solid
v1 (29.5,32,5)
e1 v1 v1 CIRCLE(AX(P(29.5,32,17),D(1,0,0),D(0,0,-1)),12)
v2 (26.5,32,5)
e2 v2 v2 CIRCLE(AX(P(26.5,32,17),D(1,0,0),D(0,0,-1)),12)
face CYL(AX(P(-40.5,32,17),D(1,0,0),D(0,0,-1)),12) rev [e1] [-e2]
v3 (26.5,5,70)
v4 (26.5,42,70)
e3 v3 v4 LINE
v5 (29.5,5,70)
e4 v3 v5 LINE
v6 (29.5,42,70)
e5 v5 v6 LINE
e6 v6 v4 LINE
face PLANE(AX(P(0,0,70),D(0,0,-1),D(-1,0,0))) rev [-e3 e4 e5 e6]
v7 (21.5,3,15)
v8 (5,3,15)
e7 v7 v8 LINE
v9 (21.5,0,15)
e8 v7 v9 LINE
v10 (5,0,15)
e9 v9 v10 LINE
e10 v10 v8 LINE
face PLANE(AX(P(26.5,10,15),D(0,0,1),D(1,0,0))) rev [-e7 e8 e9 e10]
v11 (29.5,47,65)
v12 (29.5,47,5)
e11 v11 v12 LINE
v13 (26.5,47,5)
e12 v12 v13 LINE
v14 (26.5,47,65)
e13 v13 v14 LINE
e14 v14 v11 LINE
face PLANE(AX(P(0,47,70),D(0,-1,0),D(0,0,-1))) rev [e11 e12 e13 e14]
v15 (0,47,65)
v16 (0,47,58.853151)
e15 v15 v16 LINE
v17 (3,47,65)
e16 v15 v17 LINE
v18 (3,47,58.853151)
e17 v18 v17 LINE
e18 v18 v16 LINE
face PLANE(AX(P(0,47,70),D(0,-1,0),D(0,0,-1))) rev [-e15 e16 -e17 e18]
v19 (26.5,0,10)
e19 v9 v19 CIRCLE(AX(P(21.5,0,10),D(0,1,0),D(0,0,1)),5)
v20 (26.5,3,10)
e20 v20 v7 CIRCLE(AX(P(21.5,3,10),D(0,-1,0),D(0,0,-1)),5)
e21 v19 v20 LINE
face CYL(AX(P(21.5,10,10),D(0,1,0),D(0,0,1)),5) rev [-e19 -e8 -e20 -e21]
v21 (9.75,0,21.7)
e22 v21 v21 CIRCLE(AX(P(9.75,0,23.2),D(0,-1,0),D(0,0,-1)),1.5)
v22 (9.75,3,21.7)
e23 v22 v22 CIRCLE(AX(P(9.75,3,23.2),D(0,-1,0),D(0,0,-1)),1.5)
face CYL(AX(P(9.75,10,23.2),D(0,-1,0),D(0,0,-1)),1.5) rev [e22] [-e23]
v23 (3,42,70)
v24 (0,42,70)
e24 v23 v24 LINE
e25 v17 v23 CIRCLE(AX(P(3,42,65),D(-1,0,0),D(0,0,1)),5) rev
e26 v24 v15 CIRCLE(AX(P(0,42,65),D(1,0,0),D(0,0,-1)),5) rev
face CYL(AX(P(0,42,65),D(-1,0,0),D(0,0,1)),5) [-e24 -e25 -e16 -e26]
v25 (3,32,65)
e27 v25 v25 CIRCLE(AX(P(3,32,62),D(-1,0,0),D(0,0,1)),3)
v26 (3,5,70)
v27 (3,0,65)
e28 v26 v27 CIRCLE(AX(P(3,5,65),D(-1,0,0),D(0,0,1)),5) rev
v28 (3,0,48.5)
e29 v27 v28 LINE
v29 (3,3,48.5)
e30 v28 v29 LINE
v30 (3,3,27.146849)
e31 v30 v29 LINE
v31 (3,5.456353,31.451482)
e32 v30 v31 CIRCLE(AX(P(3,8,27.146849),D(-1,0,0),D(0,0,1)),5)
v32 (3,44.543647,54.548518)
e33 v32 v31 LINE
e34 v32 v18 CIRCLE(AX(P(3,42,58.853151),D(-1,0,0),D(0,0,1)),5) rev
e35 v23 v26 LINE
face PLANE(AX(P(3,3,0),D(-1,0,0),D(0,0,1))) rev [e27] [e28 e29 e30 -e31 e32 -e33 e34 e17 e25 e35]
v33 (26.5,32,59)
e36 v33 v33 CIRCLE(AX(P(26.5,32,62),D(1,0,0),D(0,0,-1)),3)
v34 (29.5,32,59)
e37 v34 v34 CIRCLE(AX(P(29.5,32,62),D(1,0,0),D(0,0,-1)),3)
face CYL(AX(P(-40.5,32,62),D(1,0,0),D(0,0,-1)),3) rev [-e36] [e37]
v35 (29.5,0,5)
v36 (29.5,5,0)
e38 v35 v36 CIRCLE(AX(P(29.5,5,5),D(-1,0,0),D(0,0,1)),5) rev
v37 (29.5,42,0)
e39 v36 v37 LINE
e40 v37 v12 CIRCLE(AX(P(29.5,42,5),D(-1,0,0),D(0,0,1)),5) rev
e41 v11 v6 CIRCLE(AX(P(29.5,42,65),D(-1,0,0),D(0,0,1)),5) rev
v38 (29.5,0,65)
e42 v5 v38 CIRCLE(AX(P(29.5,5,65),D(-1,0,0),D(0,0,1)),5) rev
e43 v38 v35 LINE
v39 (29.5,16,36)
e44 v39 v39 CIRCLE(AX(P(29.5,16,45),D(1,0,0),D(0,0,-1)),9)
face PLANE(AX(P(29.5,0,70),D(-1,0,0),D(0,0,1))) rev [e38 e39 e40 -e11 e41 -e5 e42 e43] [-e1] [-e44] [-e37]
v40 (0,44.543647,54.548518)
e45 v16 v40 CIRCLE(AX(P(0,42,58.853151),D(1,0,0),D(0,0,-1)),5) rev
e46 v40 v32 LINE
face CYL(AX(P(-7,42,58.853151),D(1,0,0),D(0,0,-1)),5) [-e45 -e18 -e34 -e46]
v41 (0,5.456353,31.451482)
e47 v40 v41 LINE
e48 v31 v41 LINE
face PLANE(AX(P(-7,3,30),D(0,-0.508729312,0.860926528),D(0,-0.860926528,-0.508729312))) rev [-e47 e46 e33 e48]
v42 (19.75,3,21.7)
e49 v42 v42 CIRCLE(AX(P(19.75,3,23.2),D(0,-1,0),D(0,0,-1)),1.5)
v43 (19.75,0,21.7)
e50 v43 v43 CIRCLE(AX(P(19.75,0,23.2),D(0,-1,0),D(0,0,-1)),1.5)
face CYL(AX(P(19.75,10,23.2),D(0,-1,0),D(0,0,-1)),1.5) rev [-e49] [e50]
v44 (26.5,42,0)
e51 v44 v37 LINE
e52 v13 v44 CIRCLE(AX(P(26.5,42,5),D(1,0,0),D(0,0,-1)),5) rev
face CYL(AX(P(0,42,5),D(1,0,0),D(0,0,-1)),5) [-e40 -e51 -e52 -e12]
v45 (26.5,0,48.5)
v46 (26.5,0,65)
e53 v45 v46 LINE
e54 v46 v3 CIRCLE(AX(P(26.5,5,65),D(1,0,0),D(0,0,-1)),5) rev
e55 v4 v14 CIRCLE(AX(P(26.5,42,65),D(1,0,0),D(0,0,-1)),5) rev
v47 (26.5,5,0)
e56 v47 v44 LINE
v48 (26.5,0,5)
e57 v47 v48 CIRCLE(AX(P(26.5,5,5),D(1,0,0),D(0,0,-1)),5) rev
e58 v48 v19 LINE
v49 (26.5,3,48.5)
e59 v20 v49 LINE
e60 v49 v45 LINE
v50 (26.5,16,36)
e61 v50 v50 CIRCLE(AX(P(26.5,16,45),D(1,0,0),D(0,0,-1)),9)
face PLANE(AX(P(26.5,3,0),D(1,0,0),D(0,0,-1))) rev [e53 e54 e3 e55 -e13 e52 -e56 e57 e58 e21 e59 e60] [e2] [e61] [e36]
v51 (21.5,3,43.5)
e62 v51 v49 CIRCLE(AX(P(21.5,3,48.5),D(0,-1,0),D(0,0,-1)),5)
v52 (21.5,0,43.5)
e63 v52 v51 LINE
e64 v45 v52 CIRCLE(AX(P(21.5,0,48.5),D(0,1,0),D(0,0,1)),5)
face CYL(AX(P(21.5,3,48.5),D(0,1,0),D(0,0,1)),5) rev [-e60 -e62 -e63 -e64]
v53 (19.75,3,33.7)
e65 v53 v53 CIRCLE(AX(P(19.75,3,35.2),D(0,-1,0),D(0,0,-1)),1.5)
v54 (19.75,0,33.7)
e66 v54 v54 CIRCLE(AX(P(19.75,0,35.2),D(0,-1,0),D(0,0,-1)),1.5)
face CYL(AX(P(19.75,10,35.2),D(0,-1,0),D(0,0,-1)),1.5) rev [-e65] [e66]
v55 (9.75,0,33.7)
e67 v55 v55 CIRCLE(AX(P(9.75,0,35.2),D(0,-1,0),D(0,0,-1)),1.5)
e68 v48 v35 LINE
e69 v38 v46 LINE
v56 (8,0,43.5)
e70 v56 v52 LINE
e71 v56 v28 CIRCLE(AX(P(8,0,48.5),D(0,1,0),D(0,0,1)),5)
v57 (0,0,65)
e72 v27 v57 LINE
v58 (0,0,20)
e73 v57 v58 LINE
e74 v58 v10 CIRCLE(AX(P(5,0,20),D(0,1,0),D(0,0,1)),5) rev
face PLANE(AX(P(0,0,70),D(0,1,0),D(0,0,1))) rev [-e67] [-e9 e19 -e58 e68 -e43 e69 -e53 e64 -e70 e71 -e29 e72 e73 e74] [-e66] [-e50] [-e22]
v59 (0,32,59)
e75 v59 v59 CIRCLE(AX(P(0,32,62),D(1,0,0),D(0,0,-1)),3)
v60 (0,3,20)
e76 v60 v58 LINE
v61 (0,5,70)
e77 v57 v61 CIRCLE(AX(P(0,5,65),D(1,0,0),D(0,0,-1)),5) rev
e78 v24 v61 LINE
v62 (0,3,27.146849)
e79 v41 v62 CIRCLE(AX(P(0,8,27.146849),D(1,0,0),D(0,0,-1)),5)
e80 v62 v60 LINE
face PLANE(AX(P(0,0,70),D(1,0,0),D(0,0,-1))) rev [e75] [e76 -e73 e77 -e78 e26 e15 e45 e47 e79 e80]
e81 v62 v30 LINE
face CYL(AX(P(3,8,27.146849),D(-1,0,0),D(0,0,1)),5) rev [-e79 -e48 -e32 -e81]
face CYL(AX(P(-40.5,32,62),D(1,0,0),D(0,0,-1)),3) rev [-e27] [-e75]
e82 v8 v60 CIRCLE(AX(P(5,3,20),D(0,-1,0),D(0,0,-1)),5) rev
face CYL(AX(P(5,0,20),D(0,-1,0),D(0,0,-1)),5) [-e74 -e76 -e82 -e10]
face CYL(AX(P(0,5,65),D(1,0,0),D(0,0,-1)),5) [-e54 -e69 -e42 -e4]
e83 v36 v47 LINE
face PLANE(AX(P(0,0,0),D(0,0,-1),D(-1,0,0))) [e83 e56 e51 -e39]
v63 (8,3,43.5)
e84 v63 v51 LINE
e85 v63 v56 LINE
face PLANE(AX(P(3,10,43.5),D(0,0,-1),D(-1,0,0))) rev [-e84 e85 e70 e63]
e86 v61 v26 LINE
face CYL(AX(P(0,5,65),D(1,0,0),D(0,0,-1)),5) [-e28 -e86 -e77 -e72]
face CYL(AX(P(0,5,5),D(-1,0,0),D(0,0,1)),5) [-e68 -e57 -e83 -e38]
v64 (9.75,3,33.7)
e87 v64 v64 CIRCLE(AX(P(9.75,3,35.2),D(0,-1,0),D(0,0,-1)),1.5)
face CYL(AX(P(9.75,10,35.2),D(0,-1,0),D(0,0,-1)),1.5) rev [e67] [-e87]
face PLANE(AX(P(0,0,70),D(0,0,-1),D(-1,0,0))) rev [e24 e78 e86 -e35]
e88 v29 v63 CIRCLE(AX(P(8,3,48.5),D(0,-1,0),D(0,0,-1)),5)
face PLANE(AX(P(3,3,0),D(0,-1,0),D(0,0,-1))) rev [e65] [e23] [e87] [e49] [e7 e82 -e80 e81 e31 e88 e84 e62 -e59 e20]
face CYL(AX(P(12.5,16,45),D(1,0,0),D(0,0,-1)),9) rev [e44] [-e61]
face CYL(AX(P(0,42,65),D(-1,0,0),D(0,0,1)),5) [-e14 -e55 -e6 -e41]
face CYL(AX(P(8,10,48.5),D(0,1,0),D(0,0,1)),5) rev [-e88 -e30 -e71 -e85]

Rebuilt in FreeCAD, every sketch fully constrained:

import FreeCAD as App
import Part
import Sketcher

V = App.Vector
Q = App.Units.Quantity


def edges_at(feature, points):
    """Names of the edges that pass closest to the given points."""
    edges = feature.Shape.Edges
    near = lambda p: min(range(len(edges)), key=lambda i: edges[i].distToShape(Part.Vertex(*p))[0])
    return sorted({f"Edge{near(p) + 1}" for p in points})

doc = App.newDocument("Part")
params = doc.addObject("Spreadsheet::Sheet", "Params")
for row, (alias, value) in enumerate([
    ("sketch1_height", "47 mm"),
    ("sketch1_width", "29.5 mm"),
    ("pad1_length", "70 mm"),
    ("sketch2_height", "44 mm"),
    ("sketch2_width", "23.5 mm"),
    ("pocket1_length", "70 mm"),
    ("sketch3_diameter", "24 mm"),
    ("sketch3_diameter2", "6 mm"),
    ("pocket2_length", "70 mm"),
    ("sketch4_diameter", "18 mm"),
    ("pocket3_length", "17 mm"),
    ("sketch5_height", "15 mm"),
    ("sketch5_width", "23.5 mm"),
    ("sketch5_height2", "26.5 mm"),
    ("pocket4_length", "10 mm"),
    ("fillet_radius", "5 mm"),
    ("sketch6_width", "3 mm"),
    ("sketch6_width2", "47 mm"),
    ("sketch6_height", "15 mm"),
    ("sketch6_height2", "56 mm"),
    ("pocket5_length", "10 mm"),
    ("fillet2_radius", "5 mm"),
    ("sketch7_diameter", "3 mm"),
    ("pocket6_length", "10 mm"),
], start=1):
    params.set(f"A{row}", alias)
    params.set(f"B{row}", "=" + value)
    params.setAlias(f"B{row}", alias)

body = doc.addObject("PartDesign::Body", "Body")

sketch1 = body.newObject("Sketcher::SketchObject", "Sketch")
sketch1.AttachmentSupport = (doc.getObject("XY_Plane"), [""])
sketch1.MapMode = "FlatFace"
sketch1.addGeometry(Part.LineSegment(V(0, 47, 0), V(0, 0, 0)), False)
sketch1.addGeometry(Part.LineSegment(V(0, 0, 0), V(30, 0, 0)), False)
sketch1.addGeometry(Part.LineSegment(V(30, 0, 0), V(30, 47, 0)), False)
sketch1.addGeometry(Part.LineSegment(V(30, 47, 0), V(0, 47, 0)), False)
sketch1.addConstraint(Sketcher.Constraint("Coincident", 0, 2, 1, 1))
sketch1.addConstraint(Sketcher.Constraint("Coincident", 1, 2, 2, 1))
sketch1.addConstraint(Sketcher.Constraint("Coincident", 2, 2, 3, 1))
sketch1.addConstraint(Sketcher.Constraint("Coincident", 3, 2, 0, 1))
sketch1.addConstraint(Sketcher.Constraint("Vertical", 0))
sketch1.addConstraint(Sketcher.Constraint("Horizontal", 1))
sketch1.addConstraint(Sketcher.Constraint("Vertical", 2))
sketch1.addConstraint(Sketcher.Constraint("Horizontal", 3))
sketch1.addConstraint(Sketcher.Constraint("Coincident", 0, 2, -1, 1))
sketch1.addConstraint(Sketcher.Constraint("DistanceY", 0, 2, 0, 1, Q("47 mm")))
sketch1.addConstraint(Sketcher.Constraint("DistanceX", 1, 1, 1, 2, Q("29.5 mm")))
sketch1.setExpression("Constraints[9]", "Params.sketch1_height")
sketch1.setExpression("Constraints[10]", "Params.sketch1_width")
pad1 = body.newObject("PartDesign::Pad", "Pad")
pad1.Profile = sketch1
pad1.setExpression("Length", "Params.pad1_length")

sketch2 = body.newObject("Sketcher::SketchObject", "Sketch001")
sketch2.AttachmentSupport = (doc.getObject("XY_Plane"), [""])
sketch2.MapMode = "FlatFace"
sketch2.AttachmentOffset = App.Placement(V(0, 0, 70), App.Rotation())
sketch2.addGeometry(Part.LineSegment(V(3, 47, 0), V(3, 3, 0)), False)
sketch2.addGeometry(Part.LineSegment(V(3, 3, 0), V(26, 3, 0)), False)
sketch2.addGeometry(Part.LineSegment(V(26, 3, 0), V(26, 47, 0)), False)
sketch2.addGeometry(Part.LineSegment(V(26, 47, 0), V(3, 47, 0)), False)
sketch2.addConstraint(Sketcher.Constraint("Coincident", 0, 2, 1, 1))
sketch2.addConstraint(Sketcher.Constraint("Coincident", 1, 2, 2, 1))
sketch2.addConstraint(Sketcher.Constraint("Coincident", 2, 2, 3, 1))
sketch2.addConstraint(Sketcher.Constraint("Coincident", 3, 2, 0, 1))
sketch2.addConstraint(Sketcher.Constraint("Vertical", 0))
sketch2.addConstraint(Sketcher.Constraint("Horizontal", 1))
sketch2.addConstraint(Sketcher.Constraint("Vertical", 2))
sketch2.addConstraint(Sketcher.Constraint("Horizontal", 3))
sketch2.addConstraint(Sketcher.Constraint("DistanceY", 0, 2, 0, 1, Q("44 mm")))
sketch2.addConstraint(Sketcher.Constraint("DistanceX", 1, 1, 1, 2, Q("23.5 mm")))
sketch2.addConstraint(Sketcher.Constraint("DistanceX", -1, 1, 0, 2, Q("3 mm")))
sketch2.addConstraint(Sketcher.Constraint("DistanceY", -1, 1, 0, 2, Q("3 mm")))
sketch2.setExpression("Constraints[8]", "Params.sketch2_height")
sketch2.setExpression("Constraints[9]", "Params.sketch2_width")
pocket1 = body.newObject("PartDesign::Pocket", "Pocket")
pocket1.Profile = sketch2
pocket1.setExpression("Length", "Params.pocket1_length")

sketch3 = body.newObject("Sketcher::SketchObject", "Sketch002")
sketch3.AttachmentSupport = (doc.getObject("YZ_Plane"), [""])
sketch3.MapMode = "FlatFace"
sketch3.AttachmentOffset = App.Placement(V(0, 0, 29.5), App.Rotation())
sketch3.addGeometry(Part.Circle(V(32, 17, 0), V(0, 0, 1), 12), False)
sketch3.addGeometry(Part.Circle(V(32, 62, 0), V(0, 0, 1), 3), False)
sketch3.addConstraint(Sketcher.Constraint("Vertical", 0, 3, 1, 3))
sketch3.addConstraint(Sketcher.Constraint("Diameter", 0, Q("24 mm")))
sketch3.addConstraint(Sketcher.Constraint("Diameter", 1, Q("6 mm")))
sketch3.addConstraint(Sketcher.Constraint("DistanceX", -1, 1, 0, 3, Q("32 mm")))
sketch3.addConstraint(Sketcher.Constraint("DistanceY", -1, 1, 0, 3, Q("17 mm")))
sketch3.addConstraint(Sketcher.Constraint("DistanceY", -1, 1, 1, 3, Q("62 mm")))
sketch3.setExpression("Constraints[1]", "Params.sketch3_diameter")
sketch3.setExpression("Constraints[2]", "Params.sketch3_diameter2")
pocket2 = body.newObject("PartDesign::Pocket", "Pocket001")
pocket2.Profile = sketch3
pocket2.setExpression("Length", "Params.pocket2_length")

sketch4 = body.newObject("Sketcher::SketchObject", "Sketch003")
sketch4.AttachmentSupport = (doc.getObject("YZ_Plane"), [""])
sketch4.MapMode = "FlatFace"
sketch4.AttachmentOffset = App.Placement(V(0, 0, 29.5), App.Rotation())
sketch4.addGeometry(Part.Circle(V(16, 45, 0), V(0, 0, 1), 9), False)
sketch4.addConstraint(Sketcher.Constraint("Diameter", 0, Q("18 mm")))
sketch4.addConstraint(Sketcher.Constraint("DistanceX", -1, 1, 0, 3, Q("16 mm")))
sketch4.addConstraint(Sketcher.Constraint("DistanceY", -1, 1, 0, 3, Q("45 mm")))
sketch4.setExpression("Constraints[0]", "Params.sketch4_diameter")
pocket3 = body.newObject("PartDesign::Pocket", "Pocket002")
pocket3.Profile = sketch4
pocket3.setExpression("Length", "Params.pocket3_length")

sketch5 = body.newObject("Sketcher::SketchObject", "Sketch004")
sketch5.AttachmentSupport = (doc.getObject("XZ_Plane"), [""])
sketch5.MapMode = "FlatFace"
sketch5.addGeometry(Part.LineSegment(V(3, 70, 0), V(3, 44, 0)), False)
sketch5.addGeometry(Part.LineSegment(V(3, 44, 0), V(26, 44, 0)), False)
sketch5.addGeometry(Part.LineSegment(V(26, 44, 0), V(26, 70, 0)), False)
sketch5.addGeometry(Part.LineSegment(V(26, 70, 0), V(3, 70, 0)), False)
sketch5.addGeometry(Part.LineSegment(V(3, 15, 0), V(3, 0, 0)), False)
sketch5.addGeometry(Part.LineSegment(V(3, 0, 0), V(26, 0, 0)), False)
sketch5.addGeometry(Part.LineSegment(V(26, 0, 0), V(26, 15, 0)), False)
sketch5.addGeometry(Part.LineSegment(V(26, 15, 0), V(3, 15, 0)), False)
sketch5.addConstraint(Sketcher.Constraint("Coincident", 0, 2, 1, 1))
sketch5.addConstraint(Sketcher.Constraint("Coincident", 1, 2, 2, 1))
sketch5.addConstraint(Sketcher.Constraint("Coincident", 2, 2, 3, 1))
sketch5.addConstraint(Sketcher.Constraint("Coincident", 3, 2, 0, 1))
sketch5.addConstraint(Sketcher.Constraint("Coincident", 4, 2, 5, 1))
sketch5.addConstraint(Sketcher.Constraint("Coincident", 5, 2, 6, 1))
sketch5.addConstraint(Sketcher.Constraint("Coincident", 6, 2, 7, 1))
sketch5.addConstraint(Sketcher.Constraint("Coincident", 7, 2, 4, 1))
sketch5.addConstraint(Sketcher.Constraint("Vertical", 0))
sketch5.addConstraint(Sketcher.Constraint("Horizontal", 1))
sketch5.addConstraint(Sketcher.Constraint("Vertical", 2))
sketch5.addConstraint(Sketcher.Constraint("Horizontal", 3))
sketch5.addConstraint(Sketcher.Constraint("Vertical", 4))
sketch5.addConstraint(Sketcher.Constraint("Horizontal", 5))
sketch5.addConstraint(Sketcher.Constraint("Vertical", 6))
sketch5.addConstraint(Sketcher.Constraint("Horizontal", 7))
sketch5.addConstraint(Sketcher.Constraint("PointOnObject", 4, 2, -1))
sketch5.addConstraint(Sketcher.Constraint("Vertical", 3, 2, 4, 2))
sketch5.addConstraint(Sketcher.Constraint("Vertical", 2, 2, 5, 2))
sketch5.addConstraint(Sketcher.Constraint("DistanceY", 4, 2, 4, 1, Q("15 mm")))
sketch5.addConstraint(Sketcher.Constraint("DistanceX", 1, 1, 1, 2, Q("23.5 mm")))
sketch5.addConstraint(Sketcher.Constraint("DistanceY", 0, 2, 0, 1, Q("26.5 mm")))
sketch5.addConstraint(Sketcher.Constraint("DistanceX", -1, 1, 0, 2, Q("3 mm")))
sketch5.addConstraint(Sketcher.Constraint("DistanceY", -1, 1, 2, 2, Q("70 mm")))
sketch5.setExpression("Constraints[19]", "Params.sketch5_height")
sketch5.setExpression("Constraints[20]", "Params.sketch5_width")
sketch5.setExpression("Constraints[21]", "Params.sketch5_height2")
pocket4 = body.newObject("PartDesign::Pocket", "Pocket003")
pocket4.Profile = sketch5
pocket4.setExpression("Length", "Params.pocket4_length")
doc.recompute()

fillet = body.newObject("PartDesign::Fillet", "Fillet")
fillet.Base = (pocket4, edges_at(pocket4, [
    (1.5, 0, 0),
    (28, 0, 0),
    (28, 0, 70),
    (1.5, 0, 70),
    (3, 1.5, 43.5),
    (26.5, 1.5, 43.5),
]))
fillet.setExpression("Radius", "Params.fillet_radius")

sketch6 = body.newObject("Sketcher::SketchObject", "Sketch005")
sketch6.AttachmentSupport = (doc.getObject("YZ_Plane"), [""])
sketch6.MapMode = "FlatFace"
sketch6.AttachmentOffset = App.Placement(V(0, 0, 3), App.Rotation())
sketch6.addGeometry(Part.LineSegment(V(3, 15, 0), V(0, 15, 0)), False)
sketch6.addGeometry(Part.LineSegment(V(0, 15, 0), V(0, 0, 0)), False)
sketch6.addGeometry(Part.LineSegment(V(0, 0, 0), V(47, 0, 0)), False)
sketch6.addGeometry(Part.LineSegment(V(47, 0, 0), V(47, 56, 0)), False)
sketch6.addGeometry(Part.LineSegment(V(47, 56, 0), V(3, 30, 0)), False)
sketch6.addGeometry(Part.LineSegment(V(3, 30, 0), V(3, 15, 0)), False)
sketch6.addConstraint(Sketcher.Constraint("Coincident", 0, 2, 1, 1))
sketch6.addConstraint(Sketcher.Constraint("Coincident", 1, 2, 2, 1))
sketch6.addConstraint(Sketcher.Constraint("Coincident", 2, 2, 3, 1))
sketch6.addConstraint(Sketcher.Constraint("Coincident", 3, 2, 4, 1))
sketch6.addConstraint(Sketcher.Constraint("Coincident", 4, 2, 5, 1))
sketch6.addConstraint(Sketcher.Constraint("Coincident", 5, 2, 0, 1))
sketch6.addConstraint(Sketcher.Constraint("Horizontal", 0))
sketch6.addConstraint(Sketcher.Constraint("Vertical", 1))
sketch6.addConstraint(Sketcher.Constraint("Horizontal", 2))
sketch6.addConstraint(Sketcher.Constraint("Vertical", 3))
sketch6.addConstraint(Sketcher.Constraint("Vertical", 5))
sketch6.addConstraint(Sketcher.Constraint("Coincident", 1, 2, -1, 1))
sketch6.addConstraint(Sketcher.Constraint("Equal", 1, 5))
sketch6.addConstraint(Sketcher.Constraint("DistanceX", 0, 2, 0, 1, Q("3 mm")))
sketch6.addConstraint(Sketcher.Constraint("DistanceX", 2, 1, 2, 2, Q("47 mm")))
sketch6.addConstraint(Sketcher.Constraint("DistanceY", 1, 2, 1, 1, Q("15 mm")))
sketch6.addConstraint(Sketcher.Constraint("DistanceY", 3, 1, 3, 2, Q("56 mm")))
sketch6.setExpression("Constraints[13]", "Params.sketch6_width")
sketch6.setExpression("Constraints[14]", "Params.sketch6_width2")
sketch6.setExpression("Constraints[15]", "Params.sketch6_height")
sketch6.setExpression("Constraints[16]", "Params.sketch6_height2")
pocket5 = body.newObject("PartDesign::Pocket", "Pocket004")
pocket5.Profile = sketch6
pocket5.setExpression("Length", "Params.pocket5_length")
doc.recompute()

fillet2 = body.newObject("PartDesign::Fillet", "Fillet001")
fillet2.Base = (pocket5, edges_at(pocket5, [
    (28, 47, 70),
    (0, 1.5, 15),
    (1.5, 3, 30),
    (1.5, 47, 56),
    (1.5, 47, 70),
    (28, 47, 0),
    (26.5, 1.5, 15),
]))
fillet2.setExpression("Radius", "Params.fillet2_radius")

sketch7 = body.newObject("Sketcher::SketchObject", "Sketch006")
sketch7.AttachmentSupport = (doc.getObject("XZ_Plane"), [""])
sketch7.MapMode = "FlatFace"
sketch7.addGeometry(Part.Circle(V(9.8, 35.2, 0), V(0, 0, 1), 1.5), False)
sketch7.addGeometry(Part.Circle(V(9.8, 23.2, 0), V(0, 0, 1), 1.5), False)
sketch7.addGeometry(Part.Circle(V(19.8, 23.2, 0), V(0, 0, 1), 1.5), False)
sketch7.addGeometry(Part.Circle(V(19.8, 35.2, 0), V(0, 0, 1), 1.5), False)
sketch7.addConstraint(Sketcher.Constraint("Equal", 0, 1))
sketch7.addConstraint(Sketcher.Constraint("Equal", 1, 2))
sketch7.addConstraint(Sketcher.Constraint("Equal", 2, 3))
sketch7.addConstraint(Sketcher.Constraint("Horizontal", 1, 3, 2, 3))
sketch7.addConstraint(Sketcher.Constraint("Horizontal", 0, 3, 3, 3))
sketch7.addConstraint(Sketcher.Constraint("Vertical", 0, 3, 1, 3))
sketch7.addConstraint(Sketcher.Constraint("Vertical", 2, 3, 3, 3))
sketch7.addConstraint(Sketcher.Constraint("Diameter", 0, Q("3 mm")))
sketch7.addConstraint(Sketcher.Constraint("DistanceY", 1, 3, 0, 3, Q("12 mm")))
sketch7.addConstraint(Sketcher.Constraint("DistanceX", 1, 3, 2, 3, Q("10 mm")))
sketch7.addConstraint(Sketcher.Constraint("DistanceY", -1, 1, 0, 3, Q("35.2 mm")))
sketch7.addConstraint(Sketcher.Constraint("DistanceX", -1, 1, 0, 3, Q("9.75 mm")))
sketch7.setExpression("Constraints[7]", "Params.sketch7_diameter")
pocket6 = body.newObject("PartDesign::Pocket", "Pocket005")
pocket6.Profile = sketch7
pocket6.setExpression("Length", "Params.pocket6_length")

doc.recompute()
